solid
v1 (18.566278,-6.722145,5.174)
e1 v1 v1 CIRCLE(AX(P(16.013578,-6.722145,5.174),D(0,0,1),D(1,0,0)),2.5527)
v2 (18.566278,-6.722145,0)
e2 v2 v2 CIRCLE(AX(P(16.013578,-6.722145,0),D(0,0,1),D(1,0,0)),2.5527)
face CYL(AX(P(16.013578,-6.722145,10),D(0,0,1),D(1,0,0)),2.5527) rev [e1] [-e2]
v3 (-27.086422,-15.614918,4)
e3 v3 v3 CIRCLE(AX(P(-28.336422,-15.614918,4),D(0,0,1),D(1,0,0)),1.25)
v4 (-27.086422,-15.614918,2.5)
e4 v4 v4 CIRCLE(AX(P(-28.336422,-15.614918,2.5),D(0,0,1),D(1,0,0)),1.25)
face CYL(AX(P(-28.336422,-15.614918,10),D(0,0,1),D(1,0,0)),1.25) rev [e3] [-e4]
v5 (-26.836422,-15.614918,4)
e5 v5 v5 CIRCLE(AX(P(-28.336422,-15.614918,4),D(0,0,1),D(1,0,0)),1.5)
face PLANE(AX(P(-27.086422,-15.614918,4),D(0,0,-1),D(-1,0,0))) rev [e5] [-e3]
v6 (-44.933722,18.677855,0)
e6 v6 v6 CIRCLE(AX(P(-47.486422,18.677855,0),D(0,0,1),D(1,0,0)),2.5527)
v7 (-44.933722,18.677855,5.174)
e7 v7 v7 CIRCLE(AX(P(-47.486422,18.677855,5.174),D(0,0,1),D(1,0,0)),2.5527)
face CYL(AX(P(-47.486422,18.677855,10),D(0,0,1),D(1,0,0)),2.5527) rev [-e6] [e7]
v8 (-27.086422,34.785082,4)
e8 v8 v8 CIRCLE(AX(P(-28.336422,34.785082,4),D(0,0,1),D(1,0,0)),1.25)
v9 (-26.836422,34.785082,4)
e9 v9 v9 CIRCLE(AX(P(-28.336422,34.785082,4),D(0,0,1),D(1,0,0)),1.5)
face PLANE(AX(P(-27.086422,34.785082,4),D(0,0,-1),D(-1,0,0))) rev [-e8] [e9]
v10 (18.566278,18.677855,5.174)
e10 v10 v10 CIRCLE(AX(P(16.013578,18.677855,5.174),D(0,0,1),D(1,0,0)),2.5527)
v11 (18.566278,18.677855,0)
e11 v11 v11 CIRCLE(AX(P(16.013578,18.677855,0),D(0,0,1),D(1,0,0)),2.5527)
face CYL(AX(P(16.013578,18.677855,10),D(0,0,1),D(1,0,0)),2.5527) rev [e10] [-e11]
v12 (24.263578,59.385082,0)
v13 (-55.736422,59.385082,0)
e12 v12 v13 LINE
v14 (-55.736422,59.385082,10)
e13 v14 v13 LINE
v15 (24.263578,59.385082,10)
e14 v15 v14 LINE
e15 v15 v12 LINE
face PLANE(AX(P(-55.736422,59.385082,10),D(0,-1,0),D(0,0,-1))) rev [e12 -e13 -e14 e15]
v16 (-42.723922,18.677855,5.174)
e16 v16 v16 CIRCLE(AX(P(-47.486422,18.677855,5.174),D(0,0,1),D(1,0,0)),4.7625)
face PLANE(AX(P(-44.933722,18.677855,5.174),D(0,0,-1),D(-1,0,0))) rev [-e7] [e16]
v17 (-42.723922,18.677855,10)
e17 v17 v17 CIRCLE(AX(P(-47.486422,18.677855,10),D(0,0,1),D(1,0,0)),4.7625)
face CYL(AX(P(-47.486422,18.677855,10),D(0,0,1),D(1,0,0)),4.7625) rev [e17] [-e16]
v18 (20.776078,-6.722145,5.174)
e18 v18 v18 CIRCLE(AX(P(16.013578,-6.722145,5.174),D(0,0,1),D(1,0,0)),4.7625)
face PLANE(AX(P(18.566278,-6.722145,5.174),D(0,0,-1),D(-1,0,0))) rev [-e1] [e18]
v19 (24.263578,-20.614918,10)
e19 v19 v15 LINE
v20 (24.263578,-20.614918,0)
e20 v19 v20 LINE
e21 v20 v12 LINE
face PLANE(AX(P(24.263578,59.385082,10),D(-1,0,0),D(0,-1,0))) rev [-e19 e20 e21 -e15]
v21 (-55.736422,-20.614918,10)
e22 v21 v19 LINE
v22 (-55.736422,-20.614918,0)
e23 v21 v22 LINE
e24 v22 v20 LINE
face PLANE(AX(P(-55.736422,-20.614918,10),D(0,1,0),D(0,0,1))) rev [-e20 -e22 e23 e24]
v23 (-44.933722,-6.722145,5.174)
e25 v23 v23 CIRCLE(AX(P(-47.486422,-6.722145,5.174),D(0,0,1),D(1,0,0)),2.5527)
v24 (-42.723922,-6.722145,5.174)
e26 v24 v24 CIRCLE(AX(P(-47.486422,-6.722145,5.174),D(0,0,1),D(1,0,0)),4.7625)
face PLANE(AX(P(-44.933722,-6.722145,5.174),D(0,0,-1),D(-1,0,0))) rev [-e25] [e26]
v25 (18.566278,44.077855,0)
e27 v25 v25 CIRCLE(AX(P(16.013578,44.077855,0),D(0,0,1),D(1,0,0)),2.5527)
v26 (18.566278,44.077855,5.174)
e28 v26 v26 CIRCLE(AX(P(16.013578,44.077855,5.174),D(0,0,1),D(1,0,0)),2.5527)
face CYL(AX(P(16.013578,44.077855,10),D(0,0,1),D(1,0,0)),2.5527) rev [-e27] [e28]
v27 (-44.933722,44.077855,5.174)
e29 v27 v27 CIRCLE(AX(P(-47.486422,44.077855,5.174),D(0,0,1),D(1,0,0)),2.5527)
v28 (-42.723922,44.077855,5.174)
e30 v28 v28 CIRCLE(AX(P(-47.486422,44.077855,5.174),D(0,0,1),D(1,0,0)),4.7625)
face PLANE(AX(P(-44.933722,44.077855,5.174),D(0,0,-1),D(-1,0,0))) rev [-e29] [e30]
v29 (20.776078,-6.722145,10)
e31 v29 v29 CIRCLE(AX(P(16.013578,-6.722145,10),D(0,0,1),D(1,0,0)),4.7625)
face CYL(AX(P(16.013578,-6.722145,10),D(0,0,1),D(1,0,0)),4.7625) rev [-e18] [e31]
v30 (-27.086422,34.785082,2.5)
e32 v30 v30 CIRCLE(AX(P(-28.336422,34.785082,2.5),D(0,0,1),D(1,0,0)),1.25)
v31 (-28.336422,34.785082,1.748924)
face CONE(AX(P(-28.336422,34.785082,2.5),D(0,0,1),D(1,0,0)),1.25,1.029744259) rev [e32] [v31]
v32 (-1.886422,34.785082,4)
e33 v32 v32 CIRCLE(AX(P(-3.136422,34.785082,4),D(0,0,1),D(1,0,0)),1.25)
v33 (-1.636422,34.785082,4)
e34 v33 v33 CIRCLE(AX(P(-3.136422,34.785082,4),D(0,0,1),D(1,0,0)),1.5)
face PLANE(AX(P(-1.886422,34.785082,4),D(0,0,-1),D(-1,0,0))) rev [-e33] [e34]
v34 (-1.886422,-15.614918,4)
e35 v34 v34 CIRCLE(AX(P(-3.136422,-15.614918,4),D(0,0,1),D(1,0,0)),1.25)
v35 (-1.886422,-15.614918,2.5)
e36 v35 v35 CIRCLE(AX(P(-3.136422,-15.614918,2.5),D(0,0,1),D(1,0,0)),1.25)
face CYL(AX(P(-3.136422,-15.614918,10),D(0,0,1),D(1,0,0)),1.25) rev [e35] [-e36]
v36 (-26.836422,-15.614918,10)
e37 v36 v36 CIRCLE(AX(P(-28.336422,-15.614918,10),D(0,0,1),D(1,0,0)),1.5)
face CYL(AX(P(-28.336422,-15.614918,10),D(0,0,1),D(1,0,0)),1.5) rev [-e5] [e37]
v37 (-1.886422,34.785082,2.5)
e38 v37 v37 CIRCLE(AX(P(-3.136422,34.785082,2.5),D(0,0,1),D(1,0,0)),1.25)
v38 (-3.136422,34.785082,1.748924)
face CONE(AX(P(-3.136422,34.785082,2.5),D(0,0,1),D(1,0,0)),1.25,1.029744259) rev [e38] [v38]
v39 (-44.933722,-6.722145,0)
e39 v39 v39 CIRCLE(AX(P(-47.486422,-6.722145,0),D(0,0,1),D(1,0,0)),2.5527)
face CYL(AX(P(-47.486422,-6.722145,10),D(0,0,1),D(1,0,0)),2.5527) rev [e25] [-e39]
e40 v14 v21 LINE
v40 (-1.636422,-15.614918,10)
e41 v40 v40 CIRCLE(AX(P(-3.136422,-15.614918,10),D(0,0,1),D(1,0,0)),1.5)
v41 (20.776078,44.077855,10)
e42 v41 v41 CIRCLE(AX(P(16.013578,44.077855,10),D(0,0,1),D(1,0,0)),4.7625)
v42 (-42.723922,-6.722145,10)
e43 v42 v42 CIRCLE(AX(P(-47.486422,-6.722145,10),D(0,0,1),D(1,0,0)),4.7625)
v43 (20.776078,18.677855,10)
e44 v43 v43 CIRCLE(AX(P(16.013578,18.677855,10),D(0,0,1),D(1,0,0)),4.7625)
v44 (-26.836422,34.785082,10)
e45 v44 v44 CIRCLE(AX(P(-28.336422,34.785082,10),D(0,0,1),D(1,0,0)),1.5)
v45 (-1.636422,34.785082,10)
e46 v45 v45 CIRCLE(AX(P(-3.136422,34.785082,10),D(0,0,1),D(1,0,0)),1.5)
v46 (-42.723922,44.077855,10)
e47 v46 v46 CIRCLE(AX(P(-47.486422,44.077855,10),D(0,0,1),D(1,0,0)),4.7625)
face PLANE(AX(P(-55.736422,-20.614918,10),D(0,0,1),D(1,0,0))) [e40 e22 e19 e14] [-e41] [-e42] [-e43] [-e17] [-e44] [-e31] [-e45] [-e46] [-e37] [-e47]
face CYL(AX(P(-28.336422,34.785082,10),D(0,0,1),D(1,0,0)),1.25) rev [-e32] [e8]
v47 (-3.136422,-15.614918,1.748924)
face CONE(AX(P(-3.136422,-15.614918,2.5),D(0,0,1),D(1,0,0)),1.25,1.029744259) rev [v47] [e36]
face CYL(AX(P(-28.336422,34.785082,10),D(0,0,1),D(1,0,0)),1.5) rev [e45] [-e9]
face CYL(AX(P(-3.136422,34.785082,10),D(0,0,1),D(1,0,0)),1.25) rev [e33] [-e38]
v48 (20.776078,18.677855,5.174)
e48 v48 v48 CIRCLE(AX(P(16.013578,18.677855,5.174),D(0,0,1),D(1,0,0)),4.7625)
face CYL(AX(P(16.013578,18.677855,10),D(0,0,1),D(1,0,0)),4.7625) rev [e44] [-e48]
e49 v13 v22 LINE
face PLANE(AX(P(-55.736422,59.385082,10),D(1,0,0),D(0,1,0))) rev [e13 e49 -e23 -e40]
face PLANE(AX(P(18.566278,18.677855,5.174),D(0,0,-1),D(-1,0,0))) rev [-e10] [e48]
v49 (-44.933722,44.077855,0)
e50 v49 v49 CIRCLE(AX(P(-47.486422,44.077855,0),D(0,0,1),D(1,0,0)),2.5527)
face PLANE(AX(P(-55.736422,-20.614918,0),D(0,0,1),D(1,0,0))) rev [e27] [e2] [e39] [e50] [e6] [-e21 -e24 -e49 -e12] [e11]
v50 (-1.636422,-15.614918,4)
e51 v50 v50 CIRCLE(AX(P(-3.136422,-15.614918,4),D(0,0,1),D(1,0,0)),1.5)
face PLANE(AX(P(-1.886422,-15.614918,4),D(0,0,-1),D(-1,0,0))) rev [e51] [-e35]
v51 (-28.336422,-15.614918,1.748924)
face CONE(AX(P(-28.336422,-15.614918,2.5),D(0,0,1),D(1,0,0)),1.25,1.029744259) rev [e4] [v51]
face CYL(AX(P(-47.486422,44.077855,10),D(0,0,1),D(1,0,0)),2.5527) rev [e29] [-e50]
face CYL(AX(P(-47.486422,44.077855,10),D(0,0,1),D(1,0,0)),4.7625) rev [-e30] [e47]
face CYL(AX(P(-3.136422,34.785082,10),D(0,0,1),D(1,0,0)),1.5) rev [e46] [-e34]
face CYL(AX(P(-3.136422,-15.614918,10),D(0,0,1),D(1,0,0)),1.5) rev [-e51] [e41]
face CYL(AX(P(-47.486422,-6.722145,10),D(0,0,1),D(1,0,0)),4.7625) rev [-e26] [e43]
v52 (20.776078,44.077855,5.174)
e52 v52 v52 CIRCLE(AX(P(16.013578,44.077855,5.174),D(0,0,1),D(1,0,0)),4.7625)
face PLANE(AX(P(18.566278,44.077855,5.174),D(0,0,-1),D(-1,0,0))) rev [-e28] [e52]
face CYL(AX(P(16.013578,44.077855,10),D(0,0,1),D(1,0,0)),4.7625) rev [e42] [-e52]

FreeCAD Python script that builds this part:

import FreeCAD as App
import Part
import Sketcher

V = App.Vector
Q = App.Units.Quantity


def add_polygon(sketch, points):
    """Adds a closed chain of lines whose ends are joined by coincident constraints."""
    first, n = sketch.GeometryCount, len(points)
    for a, b in zip(points, points[1:] + points[:1]):
        sketch.addGeometry(Part.LineSegment(App.Vector(*a, 0), App.Vector(*b, 0)), False)
    for i in range(n):
        sketch.addConstraint(Sketcher.Constraint("Coincident", first + i, 2, first + (i + 1) % n, 1))

doc = App.newDocument("Part")
body = doc.addObject("PartDesign::Body", "Body")

# Sketch on XY plane
sketch1 = doc.addObject("Sketcher::SketchObject", "Sketch")
body.addObject(sketch1)
sketch1.AttachmentSupport = (doc.XY_Plane, [""])
sketch1.MapMode = "FlatFace"
add_polygon(sketch1, [(-55.736422, 59.385082), (-55.736422, -20.614918), (24.263578, -20.614918), (24.263578, 59.385082)])  # lines 0-3
sketch1.addConstraint([
    Sketcher.Constraint("Vertical", 0),
    Sketcher.Constraint("Horizontal", 1),
    Sketcher.Constraint("Vertical", 2),
    Sketcher.Constraint("Horizontal", 3),
    Sketcher.Constraint("Equal", 3, 0),
    Sketcher.Constraint("DistanceX", 1, 1, 1, 2, 80.0),
    Sketcher.Constraint("DistanceX", 0, 2, -1, 1, 55.736422),
    Sketcher.Constraint("DistanceY", 0, 2, -1, 1, 20.614918),
])
pad1 = doc.addObject("PartDesign::Pad", "Pad")
body.addObject(pad1)
pad1.Profile = sketch1
pad1.Length = 10

# Sketch on XY plane
sketch2 = doc.addObject("Sketcher::SketchObject", "Sketch001")
body.addObject(sketch2)
sketch2.AttachmentSupport = (doc.XY_Plane, [""])
sketch2.MapMode = "FlatFace"
sketch2.AttachmentOffset = App.Placement(V(0, 0, 10), App.Rotation())
sketch2.addGeometry([
    Part.Circle(V(-47.486422, 44.077855, 0), V(0, 0, 1), 2.5527),  # 0
    Part.Circle(V(-47.486422, 18.677855, 0), V(0, 0, 1), 2.5527),  # 1
    Part.Circle(V(-47.486422, -6.722145, 0), V(0, 0, 1), 2.5527),  # 2
    Part.Circle(V(16.013578, -6.722145, 0), V(0, 0, 1), 2.5527),  # 3
    Part.Circle(V(16.013578, 18.677855, 0), V(0, 0, 1), 2.5527),  # 4
    Part.Circle(V(16.013578, 44.077855, 0), V(0, 0, 1), 2.5527),  # 5
], False)
sketch2.addConstraint([
    Sketcher.Constraint("Equal", 0, 1),
    Sketcher.Constraint("Equal", 1, 2),
    Sketcher.Constraint("Equal", 2, 3),
    Sketcher.Constraint("Equal", 3, 4),
    Sketcher.Constraint("Equal", 4, 5),
    Sketcher.Constraint("Horizontal", 2, 3, 3, 3),
    Sketcher.Constraint("Horizontal", 1, 3, 4, 3),
    Sketcher.Constraint("Horizontal", 0, 3, 5, 3),
    Sketcher.Constraint("Vertical", 0, 3, 1, 3),
    Sketcher.Constraint("Vertical", 1, 3, 2, 3),
    Sketcher.Constraint("Vertical", 3, 3, 4, 3),
    Sketcher.Constraint("Vertical", 4, 3, 5, 3),
    Sketcher.Constraint("Diameter", 0, 5.1054),
    Sketcher.Constraint("DistanceY", 1, 3, 0, 3, 25.4),
    Sketcher.Constraint("DistanceY", 2, 3, 1, 3, 25.4),
    Sketcher.Constraint("DistanceX", 2, 3, 3, 3, 63.5),
    Sketcher.Constraint("DistanceX", 0, 3, -1, 1, 47.486422),
    Sketcher.Constraint("DistanceY", -1, 1, 0, 3, 44.077855),
])
doc.recompute()
hole = doc.addObject("PartDesign::Hole", "Hole")
body.addObject(hole)
hole.Profile = sketch2
hole.ThreadType = "None"
hole.Diameter = 5.1054
hole.DepthType = "ThroughAll"
hole.HoleCutType = "Counterbore"
hole.HoleCutDiameter = 9.525
hole.HoleCutDepth = 4.826

# Sketch on YZ plane
sketch3 = doc.addObject("Sketcher::SketchObject", "Sketch002")
body.addObject(sketch3)
sketch3.AttachmentSupport = (doc.YZ_Plane, [""])
sketch3.MapMode = "FlatFace"
sketch3.AttachmentOffset = App.Placement(V(0, 0, -28.336422), App.Rotation())
add_polygon(sketch3, [(34.785082, 1.748924), (34.785082, 10), (33.285082, 10), (33.285082, 4), (33.535082, 4), (33.535082, 2.5)])  # lines 0-5
sketch3.addGeometry(Part.LineSegment(V(34.785082, 10, 0), V(34.785082, 1.748924, 0)), True)  # axis
sketch3.addConstraint([
    Sketcher.Constraint("Vertical", 0),
    Sketcher.Constraint("Horizontal", 1),
    Sketcher.Constraint("Vertical", 2),
    Sketcher.Constraint("Horizontal", 3),
    Sketcher.Constraint("Vertical", 4),
    Sketcher.Constraint("Vertical", 6),
    Sketcher.Constraint("Coincident", 6, 1, 0, 2),
    Sketcher.Constraint("Equal", 1, 4),
    Sketcher.Constraint("Equal", 0, 6),
    Sketcher.Constraint("DistanceY", 2, 2, 2, 1, 6.0),
    Sketcher.Constraint("Angle", 5, Q("-31 deg")),
    Sketcher.Constraint("DistanceX", 1, 2, 1, 1, 1.5),
    Sketcher.Constraint("DistanceY", -1, 1, 0, 2, 10.0),
    Sketcher.Constraint("DistanceX", 3, 1, 3, 2, 0.25),
    Sketcher.Constraint("DistanceX", -1, 1, 0, 2, 34.785082),
])
groove = doc.addObject("PartDesign::Groove", "Groove")
body.addObject(groove)
groove.Profile = sketch3
groove.ReferenceAxis = (sketch3, ["Axis0"])
groove.Angle = 360
doc.recompute()

linearpattern = doc.addObject("PartDesign::LinearPattern", "LinearPattern")
body.addObject(linearpattern)
linearpattern.Originals = [groove]
linearpattern.Direction = (doc.Y_Axis, [""])
linearpattern.Mode = "offset"
linearpattern.Offset = 50.4
linearpattern.Occurrences = 2
linearpattern.Reversed = True
body.Tip = linearpattern
doc.recompute()

linearpattern2 = doc.addObject("PartDesign::LinearPattern", "LinearPattern001")
body.addObject(linearpattern2)
linearpattern2.Originals = [groove]
linearpattern2.Direction = (doc.X_Axis, [""])
linearpattern2.Mode = "offset"
linearpattern2.Offset = 25.2
linearpattern2.Occurrences = 2
body.Tip = linearpattern2

# Sketch on YZ plane
sketch4 = doc.addObject("Sketcher::SketchObject", "Sketch003")
body.addObject(sketch4)
sketch4.AttachmentSupport = (doc.YZ_Plane, [""])
sketch4.MapMode = "FlatFace"
sketch4.AttachmentOffset = App.Placement(V(0, 0, -3.136422), App.Rotation())
add_polygon(sketch4, [(-15.614918, 1.748924), (-15.614918, 10), (-17.114918, 10), (-17.114918, 4), (-16.864918, 4), (-16.864918, 2.5)])  # lines 0-5
sketch4.addGeometry(Part.LineSegment(V(-15.614918, 10, 0), V(-15.614918, 1.748924, 0)), True)  # axis
sketch4.addConstraint([
    Sketcher.Constraint("Vertical", 0),
    Sketcher.Constraint("Horizontal", 1),
    Sketcher.Constraint("Vertical", 2),
    Sketcher.Constraint("Horizontal", 3),
    Sketcher.Constraint("Vertical", 4),
    Sketcher.Constraint("Vertical", 6),
    Sketcher.Constraint("Coincident", 6, 1, 0, 2),
    Sketcher.Constraint("Equal", 1, 4),
    Sketcher.Constraint("Equal", 0, 6),
    Sketcher.Constraint("DistanceY", 2, 2, 2, 1, 6.0),
    Sketcher.Constraint("Angle", 5, Q("-31 deg")),
    Sketcher.Constraint("DistanceX", 1, 2, 1, 1, 1.5),
    Sketcher.Constraint("DistanceY", -1, 1, 0, 2, 10.0),
    Sketcher.Constraint("DistanceX", 3, 1, 3, 2, 0.25),
    Sketcher.Constraint("DistanceX", 0, 2, -1, 1, 15.614918),
])
groove2 = doc.addObject("PartDesign::Groove", "Groove001")
body.addObject(groove2)
groove2.Profile = sketch4
groove2.ReferenceAxis = (sketch4, ["Axis0"])
groove2.Angle = 360

doc.recompute()
